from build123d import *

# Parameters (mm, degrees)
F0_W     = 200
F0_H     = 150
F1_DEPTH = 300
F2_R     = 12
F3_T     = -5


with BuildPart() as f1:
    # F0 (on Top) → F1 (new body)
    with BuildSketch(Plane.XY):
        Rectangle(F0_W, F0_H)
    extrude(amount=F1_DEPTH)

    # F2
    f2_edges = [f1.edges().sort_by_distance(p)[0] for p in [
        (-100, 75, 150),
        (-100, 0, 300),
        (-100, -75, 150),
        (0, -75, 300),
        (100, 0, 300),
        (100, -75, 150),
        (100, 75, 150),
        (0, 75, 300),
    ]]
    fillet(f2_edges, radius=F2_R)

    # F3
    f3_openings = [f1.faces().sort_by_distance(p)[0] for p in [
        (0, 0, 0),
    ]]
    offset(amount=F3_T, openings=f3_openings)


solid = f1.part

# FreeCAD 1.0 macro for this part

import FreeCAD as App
import Part
import Sketcher

V = App.Vector


def edges_at(feature, points):
    """Names of the edges that pass closest to the given points."""
    edges = feature.Shape.Edges
    near = lambda p: min(range(len(edges)), key=lambda i: edges[i].distToShape(Part.Vertex(*p))[0])
    return sorted({f"Edge{near(p) + 1}" for p in points})


def faces_at(feature, points):
    """Names of the faces that lie closest to the given points."""
    faces = feature.Shape.Faces
    near = lambda p: min(range(len(faces)), key=lambda i: faces[i].distToShape(Part.Vertex(*p))[0])
    return sorted({f"Face{near(p) + 1}" for p in points})

doc = App.newDocument("Part")
params = doc.addObject("Spreadsheet::Sheet", "Params")
for row, (alias, value) in enumerate([
    ("sketch1_width", "200 mm"),
    ("sketch1_height", "150 mm"),
    ("pad1_length", "300 mm"),
    ("fillet_radius", "12 mm"),
    ("thickness_wall", "5 mm"),
], start=1):
    params.set(f"A{row}", alias)
    params.set(f"B{row}", "=" + value)
    params.setAlias(f"B{row}", alias)

body = doc.addObject("PartDesign::Body", "Body")

# Sketch on XY plane
sketch1 = body.newObject("Sketcher::SketchObject", "Sketch")
sketch1.AttachmentSupport = (doc.getObject("XY_Plane"), [""])
sketch1.MapMode = "FlatFace"
sketch1.addGeometry([
    Part.LineSegment(V(-100, 75, 0), V(-100, -75, 0)),
    Part.LineSegment(V(-100, -75, 0), V(100, -75, 0)),
    Part.LineSegment(V(100, -75, 0), V(100, 75, 0)),
    Part.LineSegment(V(100, 75, 0), V(-100, 75, 0)),
], False)
sketch1.addConstraint([
    Sketcher.Constraint("Coincident", 0, 2, 1, 1),
    Sketcher.Constraint("Coincident", 1, 2, 2, 1),
    Sketcher.Constraint("Coincident", 2, 2, 3, 1),
    Sketcher.Constraint("Coincident", 3, 2, 0, 1),
    Sketcher.Constraint("Vertical", 0),
    Sketcher.Constraint("Horizontal", 1),
    Sketcher.Constraint("Vertical", 2),
    Sketcher.Constraint("Horizontal", 3),
    Sketcher.Constraint("Symmetric", 0, 2, 2, 2, -1, 1),
    Sketcher.Constraint("DistanceX", 1, 1, 1, 2, 200.0),
    Sketcher.Constraint("DistanceY", 0, 2, 0, 1, 150.0),
])
sketch1.setExpression("Constraints[9]", "Params.sketch1_width")
sketch1.setExpression("Constraints[10]", "Params.sketch1_height")
pad1 = body.newObject("PartDesign::Pad", "Pad")
pad1.Profile = sketch1
pad1.setExpression("Length", "Params.pad1_length")
doc.recompute()

fillet = body.newObject("PartDesign::Fillet", "Fillet")
fillet.Base = (pad1, edges_at(pad1, [
    (-100, 75, 150),
    (-100, 0, 300),
    (-100, -75, 150),
    (0, -75, 300),
    (100, 0, 300),
    (100, -75, 150),
    (100, 75, 150),
    (0, 75, 300),
]))
fillet.setExpression("Radius", "Params.fillet_radius")
doc.recompute()

thickness = body.newObject("PartDesign::Thickness", "Thickness")
thickness.Base = (fillet, faces_at(fillet, [(0, 0, 0)]))
thickness.setExpression("Value", "Params.thickness_wall")
thickness.Reversed = True
thickness.Join = "Arc"

doc.recompute()
